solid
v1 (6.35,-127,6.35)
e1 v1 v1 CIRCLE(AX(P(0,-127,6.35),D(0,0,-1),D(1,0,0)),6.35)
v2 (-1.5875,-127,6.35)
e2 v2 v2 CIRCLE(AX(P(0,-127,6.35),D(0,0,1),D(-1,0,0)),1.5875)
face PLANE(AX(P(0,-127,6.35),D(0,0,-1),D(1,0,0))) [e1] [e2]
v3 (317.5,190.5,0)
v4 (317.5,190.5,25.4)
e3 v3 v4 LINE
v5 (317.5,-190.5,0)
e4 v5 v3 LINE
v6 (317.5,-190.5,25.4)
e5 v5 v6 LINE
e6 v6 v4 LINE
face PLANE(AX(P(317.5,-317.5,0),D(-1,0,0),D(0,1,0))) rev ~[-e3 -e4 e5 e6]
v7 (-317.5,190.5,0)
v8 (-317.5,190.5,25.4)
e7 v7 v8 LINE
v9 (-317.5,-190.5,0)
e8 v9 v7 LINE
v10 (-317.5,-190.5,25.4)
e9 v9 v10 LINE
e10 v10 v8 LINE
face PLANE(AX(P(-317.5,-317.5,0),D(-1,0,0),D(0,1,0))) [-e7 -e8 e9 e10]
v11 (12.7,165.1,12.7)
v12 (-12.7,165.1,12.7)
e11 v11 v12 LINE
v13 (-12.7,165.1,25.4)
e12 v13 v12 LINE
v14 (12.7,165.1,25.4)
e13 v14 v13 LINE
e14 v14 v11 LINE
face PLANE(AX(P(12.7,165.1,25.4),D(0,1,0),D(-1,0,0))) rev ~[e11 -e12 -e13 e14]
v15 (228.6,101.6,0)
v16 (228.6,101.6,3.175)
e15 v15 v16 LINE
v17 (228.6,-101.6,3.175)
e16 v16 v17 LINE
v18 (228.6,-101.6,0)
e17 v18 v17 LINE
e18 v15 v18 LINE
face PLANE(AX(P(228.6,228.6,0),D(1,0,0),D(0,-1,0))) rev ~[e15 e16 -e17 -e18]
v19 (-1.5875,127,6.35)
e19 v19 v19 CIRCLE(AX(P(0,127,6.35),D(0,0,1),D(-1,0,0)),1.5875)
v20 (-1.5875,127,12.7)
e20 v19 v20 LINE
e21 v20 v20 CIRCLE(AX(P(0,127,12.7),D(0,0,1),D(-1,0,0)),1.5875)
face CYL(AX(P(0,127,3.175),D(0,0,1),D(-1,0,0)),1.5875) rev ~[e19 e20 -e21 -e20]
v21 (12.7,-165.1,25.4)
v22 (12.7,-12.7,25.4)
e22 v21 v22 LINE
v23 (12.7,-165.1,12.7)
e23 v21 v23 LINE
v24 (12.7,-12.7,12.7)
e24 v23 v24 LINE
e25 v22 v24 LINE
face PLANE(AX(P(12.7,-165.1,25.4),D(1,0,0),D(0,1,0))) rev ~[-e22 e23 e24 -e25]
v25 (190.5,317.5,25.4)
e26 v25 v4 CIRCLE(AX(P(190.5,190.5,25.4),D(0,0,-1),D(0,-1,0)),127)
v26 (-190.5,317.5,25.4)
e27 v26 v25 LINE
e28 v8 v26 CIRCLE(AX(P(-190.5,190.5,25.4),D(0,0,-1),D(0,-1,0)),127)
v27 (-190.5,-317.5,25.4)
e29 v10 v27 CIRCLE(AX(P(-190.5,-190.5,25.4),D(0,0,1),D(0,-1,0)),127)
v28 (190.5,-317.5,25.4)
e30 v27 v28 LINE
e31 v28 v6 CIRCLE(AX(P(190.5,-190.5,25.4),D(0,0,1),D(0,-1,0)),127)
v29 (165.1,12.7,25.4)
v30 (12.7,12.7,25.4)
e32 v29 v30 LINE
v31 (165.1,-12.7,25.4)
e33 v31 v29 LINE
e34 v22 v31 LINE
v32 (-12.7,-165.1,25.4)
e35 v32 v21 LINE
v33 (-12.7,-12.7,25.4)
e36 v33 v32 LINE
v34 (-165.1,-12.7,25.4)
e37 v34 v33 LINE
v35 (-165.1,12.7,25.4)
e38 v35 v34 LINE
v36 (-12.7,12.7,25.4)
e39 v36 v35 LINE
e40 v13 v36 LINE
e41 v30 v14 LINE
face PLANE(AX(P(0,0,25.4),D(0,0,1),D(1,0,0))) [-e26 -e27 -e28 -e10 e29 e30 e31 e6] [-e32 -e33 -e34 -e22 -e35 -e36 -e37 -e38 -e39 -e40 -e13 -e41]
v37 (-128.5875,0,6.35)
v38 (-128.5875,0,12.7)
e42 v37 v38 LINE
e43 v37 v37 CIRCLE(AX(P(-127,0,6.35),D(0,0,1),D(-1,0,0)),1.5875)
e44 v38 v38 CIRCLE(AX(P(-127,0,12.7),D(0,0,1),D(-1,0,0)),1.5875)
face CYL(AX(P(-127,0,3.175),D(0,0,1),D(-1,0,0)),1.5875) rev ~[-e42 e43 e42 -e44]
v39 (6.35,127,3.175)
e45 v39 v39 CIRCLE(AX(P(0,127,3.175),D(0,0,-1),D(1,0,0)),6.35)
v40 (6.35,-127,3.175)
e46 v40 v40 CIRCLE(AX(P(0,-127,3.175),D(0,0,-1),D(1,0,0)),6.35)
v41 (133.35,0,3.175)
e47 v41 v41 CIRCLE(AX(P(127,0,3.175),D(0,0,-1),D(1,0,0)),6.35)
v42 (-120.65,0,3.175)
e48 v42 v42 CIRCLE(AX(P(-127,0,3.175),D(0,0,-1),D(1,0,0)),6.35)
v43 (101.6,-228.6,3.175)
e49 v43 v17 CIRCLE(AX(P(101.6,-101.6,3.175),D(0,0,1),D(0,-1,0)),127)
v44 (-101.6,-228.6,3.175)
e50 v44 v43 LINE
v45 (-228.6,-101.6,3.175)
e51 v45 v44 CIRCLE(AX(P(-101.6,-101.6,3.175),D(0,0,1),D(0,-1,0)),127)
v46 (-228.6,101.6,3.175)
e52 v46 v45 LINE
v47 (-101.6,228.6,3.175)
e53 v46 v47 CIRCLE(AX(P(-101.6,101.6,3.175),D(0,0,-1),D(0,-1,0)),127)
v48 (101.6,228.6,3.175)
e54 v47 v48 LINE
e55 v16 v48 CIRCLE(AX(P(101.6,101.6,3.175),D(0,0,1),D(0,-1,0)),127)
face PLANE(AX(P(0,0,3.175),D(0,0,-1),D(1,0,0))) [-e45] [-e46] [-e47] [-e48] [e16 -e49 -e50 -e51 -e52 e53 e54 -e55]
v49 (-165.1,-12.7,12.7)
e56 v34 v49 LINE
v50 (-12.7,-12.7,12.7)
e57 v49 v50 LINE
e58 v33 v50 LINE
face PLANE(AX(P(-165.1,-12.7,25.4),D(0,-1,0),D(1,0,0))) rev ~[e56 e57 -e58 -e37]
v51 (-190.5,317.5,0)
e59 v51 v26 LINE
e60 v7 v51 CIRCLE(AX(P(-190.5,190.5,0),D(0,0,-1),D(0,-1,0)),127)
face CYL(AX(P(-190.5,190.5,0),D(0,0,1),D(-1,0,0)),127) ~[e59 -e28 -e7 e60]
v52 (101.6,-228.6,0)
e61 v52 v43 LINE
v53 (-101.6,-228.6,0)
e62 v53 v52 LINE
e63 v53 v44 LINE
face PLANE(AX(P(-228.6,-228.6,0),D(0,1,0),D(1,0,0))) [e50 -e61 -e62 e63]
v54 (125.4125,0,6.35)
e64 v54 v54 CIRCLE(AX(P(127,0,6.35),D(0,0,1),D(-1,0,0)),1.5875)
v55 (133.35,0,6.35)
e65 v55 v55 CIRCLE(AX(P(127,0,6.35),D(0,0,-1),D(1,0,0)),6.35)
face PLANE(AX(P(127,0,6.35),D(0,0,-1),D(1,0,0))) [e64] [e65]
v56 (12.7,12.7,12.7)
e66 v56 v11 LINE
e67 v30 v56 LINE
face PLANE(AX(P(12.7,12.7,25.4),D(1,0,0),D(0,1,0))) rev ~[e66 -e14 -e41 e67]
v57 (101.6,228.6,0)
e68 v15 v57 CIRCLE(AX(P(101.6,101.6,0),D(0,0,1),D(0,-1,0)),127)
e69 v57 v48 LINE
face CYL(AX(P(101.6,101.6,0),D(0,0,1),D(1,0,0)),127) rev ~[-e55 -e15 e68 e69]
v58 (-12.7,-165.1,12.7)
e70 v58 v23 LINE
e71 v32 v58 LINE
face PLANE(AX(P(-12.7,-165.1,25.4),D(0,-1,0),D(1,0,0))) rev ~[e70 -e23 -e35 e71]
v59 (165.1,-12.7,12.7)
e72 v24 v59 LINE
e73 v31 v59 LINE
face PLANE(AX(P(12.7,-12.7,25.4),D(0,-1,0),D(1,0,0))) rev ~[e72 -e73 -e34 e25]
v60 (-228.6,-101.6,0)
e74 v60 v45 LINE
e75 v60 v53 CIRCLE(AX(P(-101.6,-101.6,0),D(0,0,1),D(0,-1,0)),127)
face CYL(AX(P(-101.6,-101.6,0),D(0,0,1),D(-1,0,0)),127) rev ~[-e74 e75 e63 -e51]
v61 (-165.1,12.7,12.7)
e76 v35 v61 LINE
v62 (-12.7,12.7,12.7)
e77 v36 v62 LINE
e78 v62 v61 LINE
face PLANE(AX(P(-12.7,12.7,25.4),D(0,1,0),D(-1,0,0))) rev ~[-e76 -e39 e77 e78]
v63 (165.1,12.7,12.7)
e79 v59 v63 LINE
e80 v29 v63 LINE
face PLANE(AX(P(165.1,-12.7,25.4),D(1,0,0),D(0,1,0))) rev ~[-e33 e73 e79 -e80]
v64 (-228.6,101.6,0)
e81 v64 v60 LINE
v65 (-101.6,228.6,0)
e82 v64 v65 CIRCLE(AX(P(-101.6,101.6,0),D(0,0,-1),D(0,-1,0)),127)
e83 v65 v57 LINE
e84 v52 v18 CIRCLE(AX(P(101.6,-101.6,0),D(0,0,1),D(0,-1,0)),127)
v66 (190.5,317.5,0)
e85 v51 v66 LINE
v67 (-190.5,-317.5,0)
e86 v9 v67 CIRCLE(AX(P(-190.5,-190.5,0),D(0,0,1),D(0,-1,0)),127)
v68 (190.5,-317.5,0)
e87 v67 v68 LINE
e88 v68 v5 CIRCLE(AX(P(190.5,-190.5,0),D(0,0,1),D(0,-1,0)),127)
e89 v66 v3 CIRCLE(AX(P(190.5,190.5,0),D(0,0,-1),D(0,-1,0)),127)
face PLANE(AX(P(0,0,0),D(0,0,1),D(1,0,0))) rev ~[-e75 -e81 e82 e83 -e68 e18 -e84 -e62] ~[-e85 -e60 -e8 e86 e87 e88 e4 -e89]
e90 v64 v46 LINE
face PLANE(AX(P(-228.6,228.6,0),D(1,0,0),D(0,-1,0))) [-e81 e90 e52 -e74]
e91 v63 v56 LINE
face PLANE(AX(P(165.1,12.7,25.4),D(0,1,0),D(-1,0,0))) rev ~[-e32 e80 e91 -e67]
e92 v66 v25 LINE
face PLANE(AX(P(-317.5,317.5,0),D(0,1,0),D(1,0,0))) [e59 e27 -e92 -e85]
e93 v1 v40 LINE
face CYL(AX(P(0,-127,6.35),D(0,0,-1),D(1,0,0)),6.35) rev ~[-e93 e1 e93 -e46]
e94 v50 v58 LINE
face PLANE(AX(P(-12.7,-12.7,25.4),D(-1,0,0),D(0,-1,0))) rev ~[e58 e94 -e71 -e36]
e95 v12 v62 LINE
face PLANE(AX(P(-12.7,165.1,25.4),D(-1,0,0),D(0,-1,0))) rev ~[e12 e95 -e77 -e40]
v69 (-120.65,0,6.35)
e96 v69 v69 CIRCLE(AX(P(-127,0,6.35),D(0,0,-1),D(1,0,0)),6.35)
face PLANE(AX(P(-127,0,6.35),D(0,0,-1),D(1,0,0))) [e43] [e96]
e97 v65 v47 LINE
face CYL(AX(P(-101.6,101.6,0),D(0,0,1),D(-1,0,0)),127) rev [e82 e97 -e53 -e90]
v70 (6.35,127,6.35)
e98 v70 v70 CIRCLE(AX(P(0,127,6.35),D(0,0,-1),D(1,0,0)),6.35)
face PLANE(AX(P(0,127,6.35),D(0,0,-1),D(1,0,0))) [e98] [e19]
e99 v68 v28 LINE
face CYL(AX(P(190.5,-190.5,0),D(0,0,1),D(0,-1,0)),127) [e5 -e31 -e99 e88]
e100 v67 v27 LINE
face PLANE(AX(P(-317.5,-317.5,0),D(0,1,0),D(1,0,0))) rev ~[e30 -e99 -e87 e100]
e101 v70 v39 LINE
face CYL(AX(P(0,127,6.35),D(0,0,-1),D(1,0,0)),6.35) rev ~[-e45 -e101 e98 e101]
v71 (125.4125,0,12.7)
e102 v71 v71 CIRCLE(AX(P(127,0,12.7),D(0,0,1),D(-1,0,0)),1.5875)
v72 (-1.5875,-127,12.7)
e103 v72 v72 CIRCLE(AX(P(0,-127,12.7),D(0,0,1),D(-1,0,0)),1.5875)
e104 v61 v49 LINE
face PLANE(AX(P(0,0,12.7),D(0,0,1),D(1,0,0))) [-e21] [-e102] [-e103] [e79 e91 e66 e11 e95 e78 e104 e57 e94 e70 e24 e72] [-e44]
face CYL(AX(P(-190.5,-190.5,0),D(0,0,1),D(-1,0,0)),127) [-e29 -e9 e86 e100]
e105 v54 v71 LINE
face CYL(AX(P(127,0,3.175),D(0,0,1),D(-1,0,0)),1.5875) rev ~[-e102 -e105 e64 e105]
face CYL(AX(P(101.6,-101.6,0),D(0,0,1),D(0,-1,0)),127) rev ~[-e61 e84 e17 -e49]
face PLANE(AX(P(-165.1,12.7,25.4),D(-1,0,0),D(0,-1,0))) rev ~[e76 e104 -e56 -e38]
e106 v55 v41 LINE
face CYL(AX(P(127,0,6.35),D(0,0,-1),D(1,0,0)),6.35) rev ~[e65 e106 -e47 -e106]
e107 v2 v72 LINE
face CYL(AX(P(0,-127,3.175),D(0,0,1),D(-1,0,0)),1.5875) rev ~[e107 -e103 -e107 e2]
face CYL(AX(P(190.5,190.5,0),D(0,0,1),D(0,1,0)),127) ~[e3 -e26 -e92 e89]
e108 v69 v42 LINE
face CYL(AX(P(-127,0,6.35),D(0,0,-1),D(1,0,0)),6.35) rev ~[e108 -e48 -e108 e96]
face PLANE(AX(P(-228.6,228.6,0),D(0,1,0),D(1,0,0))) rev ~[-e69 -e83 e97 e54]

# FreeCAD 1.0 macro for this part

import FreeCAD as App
import Part
import Sketcher
Q = App.Units.Quantity


def edges_at(feature, points):
    """Names of the edges that pass closest to the given points."""
    edges = feature.Shape.Edges
    near = lambda p: min(range(len(edges)), key=lambda i: edges[i].distToShape(Part.Vertex(*p))[0])
    return sorted({f"Edge{near(p) + 1}" for p in points})

doc = App.newDocument("Part")
body = doc.addObject("PartDesign::Body", "Body")

sketch1 = body.newObject("Sketcher::SketchObject", "Sketch")
sketch1.AttachmentSupport = (doc.getObject("XY_Plane"), [""])
sketch1.MapMode = "FlatFace"
sketch1.addGeometry(Part.LineSegment(App.Vector(-318, 318, 0), App.Vector(-318, -318, 0)), False)
sketch1.addGeometry(Part.LineSegment(App.Vector(-318, -318, 0), App.Vector(318, -318, 0)), False)
sketch1.addGeometry(Part.LineSegment(App.Vector(318, -318, 0), App.Vector(318, 318, 0)), False)
sketch1.addGeometry(Part.LineSegment(App.Vector(318, 318, 0), App.Vector(-318, 318, 0)), False)
sketch1.addConstraint(Sketcher.Constraint("Coincident", 0, 2, 1, 1))
sketch1.addConstraint(Sketcher.Constraint("Coincident", 1, 2, 2, 1))
sketch1.addConstraint(Sketcher.Constraint("Coincident", 2, 2, 3, 1))
sketch1.addConstraint(Sketcher.Constraint("Coincident", 3, 2, 0, 1))
sketch1.addConstraint(Sketcher.Constraint("Vertical", 0))
sketch1.addConstraint(Sketcher.Constraint("Horizontal", 1))
sketch1.addConstraint(Sketcher.Constraint("Vertical", 2))
sketch1.addConstraint(Sketcher.Constraint("Horizontal", 3))
sketch1.addConstraint(Sketcher.Constraint("Symmetric", 0, 2, 2, 2, -1, 1))
sketch1.addConstraint(Sketcher.Constraint("Equal", 3, 0))
sketch1.addConstraint(Sketcher.Constraint("DistanceX", 1, 1, 1, 2, Q("25 in")))
pad1 = body.newObject("PartDesign::Pad", "Pad")
pad1.Profile = sketch1
pad1.Length = Q("1 in")

sketch2 = body.newObject("Sketcher::SketchObject", "Sketch001")
sketch2.AttachmentSupport = (doc.getObject("XY_Plane"), [""])
sketch2.MapMode = "FlatFace"
sketch2.AttachmentOffset = App.Placement(App.Vector(0, 0, 1 * 25.4), App.Rotation())
sketch2.addGeometry(Part.LineSegment(App.Vector(13, 13, 0), App.Vector(13, 165, 0)), False)
sketch2.addGeometry(Part.LineSegment(App.Vector(13, 165, 0), App.Vector(-13, 165, 0)), False)
sketch2.addGeometry(Part.LineSegment(App.Vector(-13, 165, 0), App.Vector(-13, 13, 0)), False)
sketch2.addGeometry(Part.LineSegment(App.Vector(-13, 13, 0), App.Vector(-165, 13, 0)), False)
sketch2.addGeometry(Part.LineSegment(App.Vector(-165, 13, 0), App.Vector(-165, -13, 0)), False)
sketch2.addGeometry(Part.LineSegment(App.Vector(-165, -13, 0), App.Vector(-13, -13, 0)), False)
sketch2.addGeometry(Part.LineSegment(App.Vector(-13, -13, 0), App.Vector(-13, -165, 0)), False)
sketch2.addGeometry(Part.LineSegment(App.Vector(-13, -165, 0), App.Vector(13, -165, 0)), False)
sketch2.addGeometry(Part.LineSegment(App.Vector(13, -165, 0), App.Vector(13, -13, 0)), False)
sketch2.addGeometry(Part.LineSegment(App.Vector(13, -13, 0), App.Vector(165, -13, 0)), False)
sketch2.addGeometry(Part.LineSegment(App.Vector(165, -13, 0), App.Vector(165, 13, 0)), False)
sketch2.addGeometry(Part.LineSegment(App.Vector(165, 13, 0), App.Vector(13, 13, 0)), False)
sketch2.addConstraint(Sketcher.Constraint("Coincident", 0, 2, 1, 1))
sketch2.addConstraint(Sketcher.Constraint("Coincident", 1, 2, 2, 1))
sketch2.addConstraint(Sketcher.Constraint("Coincident", 2, 2, 3, 1))
sketch2.addConstraint(Sketcher.Constraint("Coincident", 3, 2, 4, 1))
sketch2.addConstraint(Sketcher.Constraint("Coincident", 4, 2, 5, 1))
sketch2.addConstraint(Sketcher.Constraint("Coincident", 5, 2, 6, 1))
sketch2.addConstraint(Sketcher.Constraint("Coincident", 6, 2, 7, 1))
sketch2.addConstraint(Sketcher.Constraint("Coincident", 7, 2, 8, 1))
sketch2.addConstraint(Sketcher.Constraint("Coincident", 8, 2, 9, 1))
sketch2.addConstraint(Sketcher.Constraint("Coincident", 9, 2, 10, 1))
sketch2.addConstraint(Sketcher.Constraint("Coincident", 10, 2, 11, 1))
sketch2.addConstraint(Sketcher.Constraint("Coincident", 11, 2, 0, 1))
sketch2.addConstraint(Sketcher.Constraint("Vertical", 0))
sketch2.addConstraint(Sketcher.Constraint("Horizontal", 1))
sketch2.addConstraint(Sketcher.Constraint("Vertical", 2))
sketch2.addConstraint(Sketcher.Constraint("Horizontal", 3))
sketch2.addConstraint(Sketcher.Constraint("Vertical", 4))
sketch2.addConstraint(Sketcher.Constraint("Horizontal", 5))
sketch2.addConstraint(Sketcher.Constraint("Vertical", 6))
sketch2.addConstraint(Sketcher.Constraint("Horizontal", 7))
sketch2.addConstraint(Sketcher.Constraint("Vertical", 8))
sketch2.addConstraint(Sketcher.Constraint("Horizontal", 9))
sketch2.addConstraint(Sketcher.Constraint("Vertical", 10))
sketch2.addConstraint(Sketcher.Constraint("Horizontal", 11))
sketch2.addConstraint(Sketcher.Constraint("Symmetric", 0, 2, 6, 2, -1, 1))
sketch2.addConstraint(Sketcher.Constraint("Symmetric", 2, 2, 8, 2, -1, 1))
sketch2.addConstraint(Sketcher.Constraint("Symmetric", 4, 2, 10, 2, -1, 1))
sketch2.addConstraint(Sketcher.Constraint("Symmetric", 5, 2, 8, 2, -2))
sketch2.addConstraint(Sketcher.Constraint("Equal", 11, 0))
sketch2.addConstraint(Sketcher.Constraint("Equal", 7, 4))
sketch2.addConstraint(Sketcher.Constraint("DistanceX", 1, 2, 1, 1, Q("1 in")))
sketch2.addConstraint(Sketcher.Constraint("DistanceX", 3, 2, 3, 1, Q("6 in")))
pocket1 = body.newObject("PartDesign::Pocket", "Pocket")
pocket1.Profile = sketch2
pocket1.Length = Q("0.5 in")
doc.recompute()

fillet = body.newObject("PartDesign::Fillet", "Fillet")
fillet.Base = (pocket1, edges_at(pocket1, [
    (-317.5, -317.5, 12.7),
    (317.5, -317.5, 12.7),
    (317.5, 317.5, 12.7),
    (-317.5, 317.5, 12.7),
]))
fillet.Radius = Q("5 in")

sketch3 = body.newObject("Sketcher::SketchObject", "Sketch002")
sketch3.AttachmentSupport = (doc.getObject("XY_Plane"), [""])
sketch3.MapMode = "FlatFace"
sketch3.addGeometry(Part.LineSegment(App.Vector(-229, -229, 0), App.Vector(-229, 229, 0)), False)
sketch3.addGeometry(Part.LineSegment(App.Vector(-229, 229, 0), App.Vector(229, 229, 0)), False)
sketch3.addGeometry(Part.LineSegment(App.Vector(229, 229, 0), App.Vector(229, -229, 0)), False)
sketch3.addGeometry(Part.LineSegment(App.Vector(229, -229, 0), App.Vector(-229, -229, 0)), False)
sketch3.addConstraint(Sketcher.Constraint("Coincident", 0, 2, 1, 1))
sketch3.addConstraint(Sketcher.Constraint("Coincident", 1, 2, 2, 1))
sketch3.addConstraint(Sketcher.Constraint("Coincident", 2, 2, 3, 1))
sketch3.addConstraint(Sketcher.Constraint("Coincident", 3, 2, 0, 1))
sketch3.addConstraint(Sketcher.Constraint("Vertical", 0))
sketch3.addConstraint(Sketcher.Constraint("Horizontal", 1))
sketch3.addConstraint(Sketcher.Constraint("Vertical", 2))
sketch3.addConstraint(Sketcher.Constraint("Horizontal", 3))
sketch3.addConstraint(Sketcher.Constraint("Symmetric", 0, 2, 2, 2, -1, 1))
sketch3.addConstraint(Sketcher.Constraint("Equal", 3, 0))
sketch3.addConstraint(Sketcher.Constraint("DistanceX", 1, 1, 1, 2, Q("18 in")))
pocket2 = body.newObject("PartDesign::Pocket", "Pocket001")
pocket2.Profile = sketch3
pocket2.Length = Q("0.125 in")
pocket2.Reversed = True
doc.recompute()

fillet2 = body.newObject("PartDesign::Fillet", "Fillet001")
fillet2.Base = (pocket2, edges_at(pocket2, [
    (-228.6, -228.6, 1.587),
    (228.6, -228.6, 1.587),
    (228.6, 228.6, 1.587),
    (-228.6, 228.6, 1.587),
]))
fillet2.Radius = Q("5 in")

sketch4 = body.newObject("Sketcher::SketchObject", "Sketch003")
sketch4.AttachmentSupport = (doc.getObject("XY_Plane"), [""])
sketch4.MapMode = "FlatFace"
sketch4.AttachmentOffset = App.Placement(App.Vector(0, 0, 0.125 * 25.4), App.Rotation())
sketch4.addGeometry(Part.Circle(App.Vector(-127, 0, 0), App.Vector(0, 0, 1), 1.6), False)
sketch4.addGeometry(Part.Circle(App.Vector(127, 0, 0), App.Vector(0, 0, 1), 1.6), False)
sketch4.addGeometry(Part.Circle(App.Vector(0, -127, 0), App.Vector(0, 0, 1), 1.6), False)
sketch4.addGeometry(Part.Circle(App.Vector(0, 127, 0), App.Vector(0, 0, 1), 1.6), False)
sketch4.addConstraint(Sketcher.Constraint("Equal", 0, 1))
sketch4.addConstraint(Sketcher.Constraint("Equal", 1, 2))
sketch4.addConstraint(Sketcher.Constraint("Equal", 2, 3))
sketch4.addConstraint(Sketcher.Constraint("Symmetric", 0, 3, 1, 3, -1, 1))
sketch4.addConstraint(Sketcher.Constraint("Symmetric", 2, 3, 3, 3, -1, 1))
sketch4.addConstraint(Sketcher.Constraint("PointOnObject", 0, 3, -1))
sketch4.addConstraint(Sketcher.Constraint("PointOnObject", 2, 3, -2))
sketch4.addConstraint(Sketcher.Constraint("Diameter", 0, Q("0.125 in")))
sketch4.addConstraint(Sketcher.Constraint("DistanceX", 0, 3, -1, 1, Q("5 in")))
sketch4.addConstraint(Sketcher.Constraint("DistanceY", 2, 3, -1, 1, Q("5 in")))
doc.recompute()
hole = body.newObject("PartDesign::Hole", "Hole")
hole.Profile = sketch4
hole.ThreadType = "None"
hole.Diameter = Q("0.125 in")
hole.DepthType = "Dimension"
hole.Depth = Q("2.5 in")
hole.DrillPoint = "Flat"
hole.HoleCutType = "Counterbore"
hole.HoleCutDiameter = Q("0.5 in")
hole.HoleCutDepth = Q("0.125 in")
hole.Reversed = True

doc.recompute()
